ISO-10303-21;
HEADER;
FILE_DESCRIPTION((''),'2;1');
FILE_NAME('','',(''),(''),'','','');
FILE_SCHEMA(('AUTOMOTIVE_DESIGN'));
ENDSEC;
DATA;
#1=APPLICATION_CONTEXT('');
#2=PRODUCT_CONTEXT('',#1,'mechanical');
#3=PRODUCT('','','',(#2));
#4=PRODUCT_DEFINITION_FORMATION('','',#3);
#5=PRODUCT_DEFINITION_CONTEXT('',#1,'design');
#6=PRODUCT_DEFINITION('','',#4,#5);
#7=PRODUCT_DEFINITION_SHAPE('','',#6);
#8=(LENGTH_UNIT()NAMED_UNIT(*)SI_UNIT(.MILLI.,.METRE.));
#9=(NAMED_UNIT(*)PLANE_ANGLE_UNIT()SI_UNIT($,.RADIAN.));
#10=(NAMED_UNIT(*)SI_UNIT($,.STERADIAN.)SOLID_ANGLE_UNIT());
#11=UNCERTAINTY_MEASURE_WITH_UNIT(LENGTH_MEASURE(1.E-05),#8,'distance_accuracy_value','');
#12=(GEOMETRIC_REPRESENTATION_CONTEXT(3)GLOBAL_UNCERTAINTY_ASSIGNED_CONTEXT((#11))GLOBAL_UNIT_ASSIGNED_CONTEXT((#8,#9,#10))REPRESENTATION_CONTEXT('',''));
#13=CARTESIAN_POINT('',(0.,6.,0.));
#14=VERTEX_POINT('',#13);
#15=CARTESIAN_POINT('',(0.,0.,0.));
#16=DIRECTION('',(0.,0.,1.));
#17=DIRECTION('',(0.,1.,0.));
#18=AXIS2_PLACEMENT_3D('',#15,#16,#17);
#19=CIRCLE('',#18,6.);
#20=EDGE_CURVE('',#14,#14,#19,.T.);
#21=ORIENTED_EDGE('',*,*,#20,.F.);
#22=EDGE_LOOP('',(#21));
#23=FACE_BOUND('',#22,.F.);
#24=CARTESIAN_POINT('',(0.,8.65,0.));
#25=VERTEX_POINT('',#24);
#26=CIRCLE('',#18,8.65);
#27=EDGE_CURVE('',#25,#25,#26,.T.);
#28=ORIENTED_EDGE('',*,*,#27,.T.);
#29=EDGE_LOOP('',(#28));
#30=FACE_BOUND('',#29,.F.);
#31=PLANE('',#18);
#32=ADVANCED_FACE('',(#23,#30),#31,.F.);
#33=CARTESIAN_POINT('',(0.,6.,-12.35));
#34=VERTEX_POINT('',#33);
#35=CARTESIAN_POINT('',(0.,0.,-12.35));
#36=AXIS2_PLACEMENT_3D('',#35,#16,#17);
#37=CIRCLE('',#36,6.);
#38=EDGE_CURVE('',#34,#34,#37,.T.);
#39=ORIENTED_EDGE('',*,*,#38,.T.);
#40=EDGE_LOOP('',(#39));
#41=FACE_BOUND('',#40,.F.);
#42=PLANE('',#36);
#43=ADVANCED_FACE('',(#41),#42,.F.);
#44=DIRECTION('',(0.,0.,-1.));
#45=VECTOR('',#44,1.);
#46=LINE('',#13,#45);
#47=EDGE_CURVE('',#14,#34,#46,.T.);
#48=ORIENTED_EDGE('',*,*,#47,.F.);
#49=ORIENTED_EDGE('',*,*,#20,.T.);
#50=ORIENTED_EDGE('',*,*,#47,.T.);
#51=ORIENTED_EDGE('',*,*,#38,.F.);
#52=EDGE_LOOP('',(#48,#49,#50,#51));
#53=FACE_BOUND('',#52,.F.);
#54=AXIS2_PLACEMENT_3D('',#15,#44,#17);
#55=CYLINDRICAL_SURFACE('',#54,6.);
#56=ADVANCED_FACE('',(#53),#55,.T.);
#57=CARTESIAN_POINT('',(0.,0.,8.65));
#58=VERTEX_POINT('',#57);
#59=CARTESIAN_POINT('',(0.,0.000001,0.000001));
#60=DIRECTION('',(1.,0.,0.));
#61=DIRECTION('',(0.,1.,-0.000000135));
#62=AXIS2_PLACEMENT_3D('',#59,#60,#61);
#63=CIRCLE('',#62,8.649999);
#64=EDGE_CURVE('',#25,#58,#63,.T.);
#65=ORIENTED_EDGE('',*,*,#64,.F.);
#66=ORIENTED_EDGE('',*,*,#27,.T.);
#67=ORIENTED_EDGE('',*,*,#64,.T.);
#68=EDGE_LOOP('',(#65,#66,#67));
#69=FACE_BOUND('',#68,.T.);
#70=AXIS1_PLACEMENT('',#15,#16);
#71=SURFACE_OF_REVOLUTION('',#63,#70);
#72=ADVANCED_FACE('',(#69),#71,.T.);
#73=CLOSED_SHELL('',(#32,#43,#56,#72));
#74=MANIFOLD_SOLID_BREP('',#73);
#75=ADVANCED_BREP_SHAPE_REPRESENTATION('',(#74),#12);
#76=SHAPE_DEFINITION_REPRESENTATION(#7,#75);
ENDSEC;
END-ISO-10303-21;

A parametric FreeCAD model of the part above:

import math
import FreeCAD as App
import Part
import Sketcher
from FreeCAD import Vector
Q = App.Units.Quantity

doc = App.newDocument("Part")
params = doc.addObject("Spreadsheet::Sheet", "Params")
for row, (alias, value) in enumerate([
    ("sketch1_width", "6 mm"),
    ("sketch1_height", "21 mm"),
    ("sketch1_radius", "8.649999 mm"),
    ("revolution_angle", "360 deg"),
], start=1):
    params.set(f"A{row}", alias)
    params.set(f"B{row}", "=" + value)
    params.setAlias(f"B{row}", alias)

body = doc.addObject("PartDesign::Body", "Body")

sketch1 = doc.addObject("Sketcher::SketchObject", "Sketch")
body.addObject(sketch1)
sketch1.AttachmentSupport = (doc.YZ_Plane, [""])
sketch1.MapMode = "FlatFace"
sketch1.addGeometry([
    Part.LineSegment(Vector(6, 0, 0), Vector(8.65, 0, 0)),
    Part.ArcOfCircle(Part.Circle(Vector(0.000001, 0.000001, 0), Vector(0, 0, 1), 8.649999), math.radians(-0.000008), math.radians(90.000008)),
    Part.LineSegment(Vector(0, 8.65, 0), Vector(0, -12.35, 0)),
    Part.LineSegment(Vector(0, -12.35, 0), Vector(6, -12.35, 0)),
    Part.LineSegment(Vector(6, -12.35, 0), Vector(6, 0, 0)),
], False)
sketch1.addConstraint([
    Sketcher.Constraint("Coincident", 0, 2, 1, 1),
    Sketcher.Constraint("Coincident", 1, 2, 2, 1),
    Sketcher.Constraint("Coincident", 2, 2, 3, 1),
    Sketcher.Constraint("Coincident", 3, 2, 4, 1),
    Sketcher.Constraint("Coincident", 4, 2, 0, 1),
    Sketcher.Constraint("Horizontal", 0),
    Sketcher.Constraint("Vertical", 2),
    Sketcher.Constraint("Horizontal", 3),
    Sketcher.Constraint("Vertical", 4),
    Sketcher.Constraint("Coincident", 1, 3, -1, 1),
    Sketcher.Constraint("PointOnObject", 0, 2, -1),
    Sketcher.Constraint("PointOnObject", 1, 2, -2),
    Sketcher.Constraint("DistanceX", 3, 1, 3, 2, Q("6 mm")),
    Sketcher.Constraint("DistanceY", 2, 2, 2, 1, Q("21 mm")),
    Sketcher.Constraint("Radius", 1, Q("8.649999 mm")),
])
sketch1.setExpression("Constraints[12]", "Params.sketch1_width")
sketch1.setExpression("Constraints[13]", "Params.sketch1_height")
sketch1.setExpression("Constraints[14]", "Params.sketch1_radius")
revolution = doc.addObject("PartDesign::Revolution", "Revolution")
body.addObject(revolution)
revolution.Profile = sketch1
revolution.ReferenceAxis = (sketch1, ["V_Axis"])
revolution.setExpression("Angle", "Params.revolution_angle")

doc.recompute()
